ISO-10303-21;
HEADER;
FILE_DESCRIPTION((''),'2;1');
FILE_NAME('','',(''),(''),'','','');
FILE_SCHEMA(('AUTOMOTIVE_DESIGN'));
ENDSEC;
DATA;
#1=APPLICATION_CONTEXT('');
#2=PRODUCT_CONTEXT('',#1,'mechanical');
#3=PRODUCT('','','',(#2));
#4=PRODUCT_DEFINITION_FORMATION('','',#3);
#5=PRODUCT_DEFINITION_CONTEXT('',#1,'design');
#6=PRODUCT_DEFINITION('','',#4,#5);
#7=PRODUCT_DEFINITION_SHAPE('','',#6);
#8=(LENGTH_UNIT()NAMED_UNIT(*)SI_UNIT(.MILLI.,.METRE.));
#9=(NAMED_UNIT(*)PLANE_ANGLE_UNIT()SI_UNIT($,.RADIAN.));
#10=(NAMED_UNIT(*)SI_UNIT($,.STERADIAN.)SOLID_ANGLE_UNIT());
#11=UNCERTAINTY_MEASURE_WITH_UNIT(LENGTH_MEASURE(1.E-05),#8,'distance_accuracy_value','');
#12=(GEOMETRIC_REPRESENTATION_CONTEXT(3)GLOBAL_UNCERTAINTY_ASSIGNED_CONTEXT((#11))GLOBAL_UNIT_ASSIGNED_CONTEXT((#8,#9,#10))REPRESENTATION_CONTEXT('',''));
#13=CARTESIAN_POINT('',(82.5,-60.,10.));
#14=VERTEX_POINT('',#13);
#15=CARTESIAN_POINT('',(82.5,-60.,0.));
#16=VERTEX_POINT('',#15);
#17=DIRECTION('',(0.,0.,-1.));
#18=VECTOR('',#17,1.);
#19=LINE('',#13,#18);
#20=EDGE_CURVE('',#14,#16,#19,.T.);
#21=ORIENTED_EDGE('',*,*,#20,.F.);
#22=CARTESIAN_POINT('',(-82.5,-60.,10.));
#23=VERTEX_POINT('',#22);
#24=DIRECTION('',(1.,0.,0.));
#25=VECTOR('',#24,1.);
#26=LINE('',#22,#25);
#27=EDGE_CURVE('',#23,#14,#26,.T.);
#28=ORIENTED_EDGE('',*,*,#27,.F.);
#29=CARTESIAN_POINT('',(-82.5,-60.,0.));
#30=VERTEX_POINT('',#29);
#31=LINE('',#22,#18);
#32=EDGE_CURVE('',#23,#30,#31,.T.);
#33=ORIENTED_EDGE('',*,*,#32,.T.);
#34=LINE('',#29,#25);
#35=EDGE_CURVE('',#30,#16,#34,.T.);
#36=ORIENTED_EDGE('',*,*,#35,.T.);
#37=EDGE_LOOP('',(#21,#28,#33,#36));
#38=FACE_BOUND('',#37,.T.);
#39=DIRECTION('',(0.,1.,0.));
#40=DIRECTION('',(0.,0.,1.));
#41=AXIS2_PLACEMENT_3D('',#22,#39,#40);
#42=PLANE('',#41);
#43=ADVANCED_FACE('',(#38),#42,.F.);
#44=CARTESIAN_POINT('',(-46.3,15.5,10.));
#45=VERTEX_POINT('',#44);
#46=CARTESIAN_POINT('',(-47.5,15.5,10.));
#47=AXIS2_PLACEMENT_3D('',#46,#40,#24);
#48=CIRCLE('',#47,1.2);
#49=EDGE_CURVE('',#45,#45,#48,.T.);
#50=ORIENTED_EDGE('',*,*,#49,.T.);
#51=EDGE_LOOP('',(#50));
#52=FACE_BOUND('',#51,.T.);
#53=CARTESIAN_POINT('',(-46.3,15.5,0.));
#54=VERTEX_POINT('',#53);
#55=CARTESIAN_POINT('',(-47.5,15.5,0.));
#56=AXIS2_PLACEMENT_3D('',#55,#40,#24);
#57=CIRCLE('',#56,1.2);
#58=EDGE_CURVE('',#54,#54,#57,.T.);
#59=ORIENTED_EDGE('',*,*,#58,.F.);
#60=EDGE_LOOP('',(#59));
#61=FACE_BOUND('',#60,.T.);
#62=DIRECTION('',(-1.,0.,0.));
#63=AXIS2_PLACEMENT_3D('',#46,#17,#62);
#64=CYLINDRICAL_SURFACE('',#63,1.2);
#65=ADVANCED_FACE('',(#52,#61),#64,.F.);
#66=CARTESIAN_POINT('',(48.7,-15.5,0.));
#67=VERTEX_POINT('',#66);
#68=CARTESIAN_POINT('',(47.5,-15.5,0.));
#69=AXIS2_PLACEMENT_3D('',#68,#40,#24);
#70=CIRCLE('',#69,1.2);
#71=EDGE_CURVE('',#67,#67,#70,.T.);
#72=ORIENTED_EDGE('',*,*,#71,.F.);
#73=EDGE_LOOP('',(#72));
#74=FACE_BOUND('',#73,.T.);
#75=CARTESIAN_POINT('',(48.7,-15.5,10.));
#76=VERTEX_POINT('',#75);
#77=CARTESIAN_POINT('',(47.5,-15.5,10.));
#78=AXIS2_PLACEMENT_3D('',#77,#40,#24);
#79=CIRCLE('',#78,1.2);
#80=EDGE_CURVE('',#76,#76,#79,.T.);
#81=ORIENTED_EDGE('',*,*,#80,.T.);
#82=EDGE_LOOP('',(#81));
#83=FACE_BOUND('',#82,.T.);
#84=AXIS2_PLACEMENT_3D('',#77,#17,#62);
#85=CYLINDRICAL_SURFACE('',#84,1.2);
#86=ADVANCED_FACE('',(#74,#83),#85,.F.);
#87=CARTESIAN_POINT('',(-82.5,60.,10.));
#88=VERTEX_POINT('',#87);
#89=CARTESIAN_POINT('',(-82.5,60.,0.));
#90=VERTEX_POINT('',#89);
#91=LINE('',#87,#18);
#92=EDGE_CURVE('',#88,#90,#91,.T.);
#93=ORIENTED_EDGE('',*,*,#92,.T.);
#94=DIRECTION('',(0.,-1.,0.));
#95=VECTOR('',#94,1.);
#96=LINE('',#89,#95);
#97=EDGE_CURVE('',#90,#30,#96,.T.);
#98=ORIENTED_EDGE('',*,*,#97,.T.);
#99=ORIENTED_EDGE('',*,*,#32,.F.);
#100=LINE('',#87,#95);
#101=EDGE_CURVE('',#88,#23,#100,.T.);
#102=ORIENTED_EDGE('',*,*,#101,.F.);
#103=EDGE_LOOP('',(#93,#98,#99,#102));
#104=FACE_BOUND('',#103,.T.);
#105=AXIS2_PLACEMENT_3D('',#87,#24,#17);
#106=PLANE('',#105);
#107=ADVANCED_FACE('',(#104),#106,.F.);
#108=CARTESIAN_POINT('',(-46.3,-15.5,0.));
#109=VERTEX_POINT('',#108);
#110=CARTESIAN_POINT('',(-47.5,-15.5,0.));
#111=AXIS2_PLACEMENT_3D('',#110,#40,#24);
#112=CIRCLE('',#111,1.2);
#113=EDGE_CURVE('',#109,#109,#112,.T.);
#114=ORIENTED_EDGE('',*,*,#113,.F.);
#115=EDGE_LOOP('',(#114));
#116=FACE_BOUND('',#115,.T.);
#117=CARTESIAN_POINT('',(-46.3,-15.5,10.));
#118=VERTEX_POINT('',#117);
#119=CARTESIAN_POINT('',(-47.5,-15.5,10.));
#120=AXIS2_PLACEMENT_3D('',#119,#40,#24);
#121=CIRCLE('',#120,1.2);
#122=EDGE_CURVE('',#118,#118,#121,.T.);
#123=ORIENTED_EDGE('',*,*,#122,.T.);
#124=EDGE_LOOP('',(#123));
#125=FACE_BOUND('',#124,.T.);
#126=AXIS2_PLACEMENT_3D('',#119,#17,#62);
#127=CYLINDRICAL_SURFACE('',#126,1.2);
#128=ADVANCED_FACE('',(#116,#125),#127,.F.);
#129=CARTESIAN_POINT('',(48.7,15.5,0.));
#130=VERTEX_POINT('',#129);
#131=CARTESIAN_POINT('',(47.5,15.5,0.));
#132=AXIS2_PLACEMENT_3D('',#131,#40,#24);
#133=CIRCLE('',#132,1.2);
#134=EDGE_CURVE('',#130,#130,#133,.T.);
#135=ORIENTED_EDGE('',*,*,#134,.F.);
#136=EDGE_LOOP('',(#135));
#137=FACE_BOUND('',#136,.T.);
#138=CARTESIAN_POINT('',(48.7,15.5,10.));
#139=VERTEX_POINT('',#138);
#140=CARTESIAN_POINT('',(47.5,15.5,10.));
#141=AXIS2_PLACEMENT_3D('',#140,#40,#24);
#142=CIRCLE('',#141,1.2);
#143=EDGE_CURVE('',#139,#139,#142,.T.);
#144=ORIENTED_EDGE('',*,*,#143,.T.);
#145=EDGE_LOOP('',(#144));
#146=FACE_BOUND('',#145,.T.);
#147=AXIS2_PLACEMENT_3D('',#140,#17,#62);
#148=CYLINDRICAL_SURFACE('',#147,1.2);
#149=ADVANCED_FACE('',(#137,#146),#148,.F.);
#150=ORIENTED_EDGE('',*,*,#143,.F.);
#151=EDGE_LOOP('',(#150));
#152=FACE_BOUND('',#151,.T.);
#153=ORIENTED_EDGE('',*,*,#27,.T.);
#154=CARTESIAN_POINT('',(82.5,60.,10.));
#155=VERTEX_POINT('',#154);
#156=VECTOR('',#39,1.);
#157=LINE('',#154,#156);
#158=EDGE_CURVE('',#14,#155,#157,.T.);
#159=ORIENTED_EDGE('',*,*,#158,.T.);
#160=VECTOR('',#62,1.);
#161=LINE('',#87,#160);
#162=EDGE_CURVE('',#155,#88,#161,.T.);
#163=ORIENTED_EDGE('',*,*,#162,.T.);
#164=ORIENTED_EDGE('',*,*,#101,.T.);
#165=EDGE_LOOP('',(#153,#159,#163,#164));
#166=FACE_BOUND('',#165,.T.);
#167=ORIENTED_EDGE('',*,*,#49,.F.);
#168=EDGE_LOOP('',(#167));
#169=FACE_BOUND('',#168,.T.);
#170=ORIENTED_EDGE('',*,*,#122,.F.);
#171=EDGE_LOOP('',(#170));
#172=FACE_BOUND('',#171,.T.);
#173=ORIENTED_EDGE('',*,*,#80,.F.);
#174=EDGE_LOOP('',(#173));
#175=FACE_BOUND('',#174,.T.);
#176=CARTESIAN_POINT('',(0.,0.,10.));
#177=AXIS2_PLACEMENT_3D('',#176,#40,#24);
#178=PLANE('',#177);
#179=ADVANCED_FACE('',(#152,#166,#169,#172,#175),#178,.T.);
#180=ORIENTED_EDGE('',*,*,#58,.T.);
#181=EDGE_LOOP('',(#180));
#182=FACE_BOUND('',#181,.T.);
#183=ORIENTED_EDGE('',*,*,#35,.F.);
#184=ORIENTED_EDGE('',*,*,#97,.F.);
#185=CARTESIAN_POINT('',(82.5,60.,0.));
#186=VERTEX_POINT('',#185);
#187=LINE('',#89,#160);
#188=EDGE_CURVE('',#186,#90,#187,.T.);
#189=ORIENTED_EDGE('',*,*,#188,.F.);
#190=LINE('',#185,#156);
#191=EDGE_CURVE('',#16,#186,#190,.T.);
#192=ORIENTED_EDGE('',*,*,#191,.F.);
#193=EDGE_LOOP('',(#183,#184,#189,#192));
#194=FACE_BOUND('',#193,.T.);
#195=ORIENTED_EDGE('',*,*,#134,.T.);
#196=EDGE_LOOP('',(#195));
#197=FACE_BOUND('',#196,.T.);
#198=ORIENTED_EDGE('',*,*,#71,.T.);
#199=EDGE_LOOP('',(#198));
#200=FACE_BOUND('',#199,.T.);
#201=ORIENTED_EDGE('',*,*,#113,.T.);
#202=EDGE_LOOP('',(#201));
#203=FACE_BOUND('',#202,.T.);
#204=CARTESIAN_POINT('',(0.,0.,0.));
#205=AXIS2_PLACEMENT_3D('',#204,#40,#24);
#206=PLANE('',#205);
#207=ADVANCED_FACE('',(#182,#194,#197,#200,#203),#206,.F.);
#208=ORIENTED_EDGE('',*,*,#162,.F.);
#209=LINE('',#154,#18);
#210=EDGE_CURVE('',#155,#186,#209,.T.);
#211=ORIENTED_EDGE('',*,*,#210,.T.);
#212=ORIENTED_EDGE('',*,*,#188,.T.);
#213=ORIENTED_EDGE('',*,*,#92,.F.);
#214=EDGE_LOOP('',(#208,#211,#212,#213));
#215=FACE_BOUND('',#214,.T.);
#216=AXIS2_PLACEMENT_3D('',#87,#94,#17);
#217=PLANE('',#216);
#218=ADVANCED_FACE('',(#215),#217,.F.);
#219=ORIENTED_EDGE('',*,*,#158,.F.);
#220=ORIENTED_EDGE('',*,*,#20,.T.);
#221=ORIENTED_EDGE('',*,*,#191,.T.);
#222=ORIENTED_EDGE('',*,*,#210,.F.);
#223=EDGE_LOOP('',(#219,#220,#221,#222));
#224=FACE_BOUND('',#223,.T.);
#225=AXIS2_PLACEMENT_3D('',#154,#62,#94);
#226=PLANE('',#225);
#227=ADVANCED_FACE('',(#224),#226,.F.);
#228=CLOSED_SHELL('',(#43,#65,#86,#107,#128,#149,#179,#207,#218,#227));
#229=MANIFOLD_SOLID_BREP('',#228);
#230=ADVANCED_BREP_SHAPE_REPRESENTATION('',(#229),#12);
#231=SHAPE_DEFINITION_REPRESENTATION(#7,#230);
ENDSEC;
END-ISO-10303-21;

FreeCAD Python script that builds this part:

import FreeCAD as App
import Part
import Sketcher

V = App.Vector
Q = App.Units.Quantity


def add_polygon(sketch, points):
    """Adds a closed chain of lines whose ends are joined by coincident constraints."""
    first, n = sketch.GeometryCount, len(points)
    for a, b in zip(points, points[1:] + points[:1]):
        sketch.addGeometry(Part.LineSegment(App.Vector(*a, 0), App.Vector(*b, 0)), False)
    for i in range(n):
        sketch.addConstraint(Sketcher.Constraint("Coincident", first + i, 2, first + (i + 1) % n, 1))

doc = App.newDocument("Part")
body = doc.addObject("PartDesign::Body", "Body")

# Sketch on XY plane
sketch1 = body.newObject("Sketcher::SketchObject", "Sketch")
sketch1.AttachmentSupport = (doc.getObject("XY_Plane"), [""])
sketch1.MapMode = "FlatFace"
add_polygon(sketch1, [(-82.5, 60), (-82.5, -60), (82.5, -60), (82.5, 60)])  # lines 0-3
sketch1.addGeometry(Part.Circle(V(-47.5, -15.5, 0), V(0, 0, 1), 1.2), False)  # 4
sketch1.addGeometry(Part.Circle(V(47.5, -15.5, 0), V(0, 0, 1), 1.2), False)  # 5
sketch1.addGeometry(Part.Circle(V(-47.5, 15.5, 0), V(0, 0, 1), 1.2), False)  # 6
sketch1.addGeometry(Part.Circle(V(47.5, 15.5, 0), V(0, 0, 1), 1.2), False)  # 7
sketch1.addConstraint(Sketcher.Constraint("Vertical", 0))
sketch1.addConstraint(Sketcher.Constraint("Horizontal", 1))
sketch1.addConstraint(Sketcher.Constraint("Vertical", 2))
sketch1.addConstraint(Sketcher.Constraint("Horizontal", 3))
sketch1.addConstraint(Sketcher.Constraint("Equal", 4, 5))
sketch1.addConstraint(Sketcher.Constraint("Equal", 5, 6))
sketch1.addConstraint(Sketcher.Constraint("Equal", 6, 7))
sketch1.addConstraint(Sketcher.Constraint("Symmetric", 5, 3, 6, 3, -1, 1))
sketch1.addConstraint(Sketcher.Constraint("Symmetric", 4, 3, 7, 3, -1, 1))
sketch1.addConstraint(Sketcher.Constraint("Symmetric", 0, 2, 2, 2, -1, 1))
sketch1.addConstraint(Sketcher.Constraint("Symmetric", 4, 3, 5, 3, -2))
sketch1.addConstraint(Sketcher.Constraint("Diameter", 4, Q("2.4 mm")))
sketch1.addConstraint(Sketcher.Constraint("DistanceX", 1, 1, 1, 2, Q("165 mm")))
sketch1.addConstraint(Sketcher.Constraint("DistanceY", 0, 2, 0, 1, Q("120 mm")))
sketch1.addConstraint(Sketcher.Constraint("DistanceX", 4, 3, 5, 3, Q("95 mm")))
sketch1.addConstraint(Sketcher.Constraint("DistanceY", 4, 3, 6, 3, Q("31 mm")))
pad1 = body.newObject("PartDesign::Pad", "Pad")
pad1.Profile = sketch1
pad1.Length = 10

doc.recompute()
